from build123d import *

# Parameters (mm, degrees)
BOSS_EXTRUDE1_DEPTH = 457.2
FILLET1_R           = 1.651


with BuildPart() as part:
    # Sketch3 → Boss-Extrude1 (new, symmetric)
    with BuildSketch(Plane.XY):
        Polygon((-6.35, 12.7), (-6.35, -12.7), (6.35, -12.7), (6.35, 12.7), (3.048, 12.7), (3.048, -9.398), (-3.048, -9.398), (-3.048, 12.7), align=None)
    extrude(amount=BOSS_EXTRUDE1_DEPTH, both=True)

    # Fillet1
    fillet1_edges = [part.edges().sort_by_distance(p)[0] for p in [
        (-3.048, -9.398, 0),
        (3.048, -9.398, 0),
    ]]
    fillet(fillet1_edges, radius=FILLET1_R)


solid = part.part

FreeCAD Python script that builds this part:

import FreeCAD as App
import Part
import Sketcher
from FreeCAD import Vector
Q = App.Units.Quantity


def edges_at(feature, points):
    """Names of the edges that pass closest to the given points."""
    edges = feature.Shape.Edges
    near = lambda p: min(range(len(edges)), key=lambda i: edges[i].distToShape(Part.Vertex(*p))[0])
    return sorted({f"Edge{near(p) + 1}" for p in points})


def add_polygon(sketch, points):
    """Adds a closed chain of lines whose ends are joined by coincident constraints."""
    first, n = sketch.GeometryCount, len(points)
    for a, b in zip(points, points[1:] + points[:1]):
        sketch.addGeometry(Part.LineSegment(App.Vector(*a, 0), App.Vector(*b, 0)), False)
    for i in range(n):
        sketch.addConstraint(Sketcher.Constraint("Coincident", first + i, 2, first + (i + 1) % n, 1))

doc = App.newDocument("Part")
body = doc.addObject("PartDesign::Body", "Body")

# Sketch on XY plane
sketch1 = body.newObject("Sketcher::SketchObject", "Sketch")
sketch1.AttachmentSupport = (doc.getObject("XY_Plane"), [""])
sketch1.MapMode = "FlatFace"
add_polygon(sketch1, [(-6.3, 12.7), (-6.3, -12.7), (6.3, -12.7), (6.3, 12.7), (3, 12.7), (3, -9.4), (-3, -9.4), (-3, 12.7)])  # lines 0-7
sketch1.addConstraint([
    Sketcher.Constraint("Vertical", 0),
    Sketcher.Constraint("Horizontal", 1),
    Sketcher.Constraint("Vertical", 2),
    Sketcher.Constraint("Horizontal", 3),
    Sketcher.Constraint("Vertical", 4),
    Sketcher.Constraint("Horizontal", 5),
    Sketcher.Constraint("Vertical", 6),
    Sketcher.Constraint("Horizontal", 7),
    Sketcher.Constraint("Symmetric", 0, 2, 2, 2, -1, 1),
    Sketcher.Constraint("Symmetric", 3, 2, 6, 2, -2),
    Sketcher.Constraint("DistanceY", 0, 2, 0, 1, Q("1 in")),
    Sketcher.Constraint("DistanceX", 1, 1, 1, 2, Q("0.5 in")),
    Sketcher.Constraint("DistanceX", 3, 2, 3, 1, Q("0.13 in")),
    Sketcher.Constraint("DistanceY", 4, 2, 4, 1, Q("0.87 in")),
])
pad1 = body.newObject("PartDesign::Pad", "Pad")
pad1.Profile = sketch1
pad1.Length = Q("36 in")
pad1.Midplane = True
doc.recompute()

fillet = body.newObject("PartDesign::Fillet", "Fillet")
fillet.Base = (pad1, edges_at(pad1, [(-3.048, -9.398, 0), (3.048, -9.398, 0)]))
fillet.Radius = Q("0.065 in")

doc.recompute()
